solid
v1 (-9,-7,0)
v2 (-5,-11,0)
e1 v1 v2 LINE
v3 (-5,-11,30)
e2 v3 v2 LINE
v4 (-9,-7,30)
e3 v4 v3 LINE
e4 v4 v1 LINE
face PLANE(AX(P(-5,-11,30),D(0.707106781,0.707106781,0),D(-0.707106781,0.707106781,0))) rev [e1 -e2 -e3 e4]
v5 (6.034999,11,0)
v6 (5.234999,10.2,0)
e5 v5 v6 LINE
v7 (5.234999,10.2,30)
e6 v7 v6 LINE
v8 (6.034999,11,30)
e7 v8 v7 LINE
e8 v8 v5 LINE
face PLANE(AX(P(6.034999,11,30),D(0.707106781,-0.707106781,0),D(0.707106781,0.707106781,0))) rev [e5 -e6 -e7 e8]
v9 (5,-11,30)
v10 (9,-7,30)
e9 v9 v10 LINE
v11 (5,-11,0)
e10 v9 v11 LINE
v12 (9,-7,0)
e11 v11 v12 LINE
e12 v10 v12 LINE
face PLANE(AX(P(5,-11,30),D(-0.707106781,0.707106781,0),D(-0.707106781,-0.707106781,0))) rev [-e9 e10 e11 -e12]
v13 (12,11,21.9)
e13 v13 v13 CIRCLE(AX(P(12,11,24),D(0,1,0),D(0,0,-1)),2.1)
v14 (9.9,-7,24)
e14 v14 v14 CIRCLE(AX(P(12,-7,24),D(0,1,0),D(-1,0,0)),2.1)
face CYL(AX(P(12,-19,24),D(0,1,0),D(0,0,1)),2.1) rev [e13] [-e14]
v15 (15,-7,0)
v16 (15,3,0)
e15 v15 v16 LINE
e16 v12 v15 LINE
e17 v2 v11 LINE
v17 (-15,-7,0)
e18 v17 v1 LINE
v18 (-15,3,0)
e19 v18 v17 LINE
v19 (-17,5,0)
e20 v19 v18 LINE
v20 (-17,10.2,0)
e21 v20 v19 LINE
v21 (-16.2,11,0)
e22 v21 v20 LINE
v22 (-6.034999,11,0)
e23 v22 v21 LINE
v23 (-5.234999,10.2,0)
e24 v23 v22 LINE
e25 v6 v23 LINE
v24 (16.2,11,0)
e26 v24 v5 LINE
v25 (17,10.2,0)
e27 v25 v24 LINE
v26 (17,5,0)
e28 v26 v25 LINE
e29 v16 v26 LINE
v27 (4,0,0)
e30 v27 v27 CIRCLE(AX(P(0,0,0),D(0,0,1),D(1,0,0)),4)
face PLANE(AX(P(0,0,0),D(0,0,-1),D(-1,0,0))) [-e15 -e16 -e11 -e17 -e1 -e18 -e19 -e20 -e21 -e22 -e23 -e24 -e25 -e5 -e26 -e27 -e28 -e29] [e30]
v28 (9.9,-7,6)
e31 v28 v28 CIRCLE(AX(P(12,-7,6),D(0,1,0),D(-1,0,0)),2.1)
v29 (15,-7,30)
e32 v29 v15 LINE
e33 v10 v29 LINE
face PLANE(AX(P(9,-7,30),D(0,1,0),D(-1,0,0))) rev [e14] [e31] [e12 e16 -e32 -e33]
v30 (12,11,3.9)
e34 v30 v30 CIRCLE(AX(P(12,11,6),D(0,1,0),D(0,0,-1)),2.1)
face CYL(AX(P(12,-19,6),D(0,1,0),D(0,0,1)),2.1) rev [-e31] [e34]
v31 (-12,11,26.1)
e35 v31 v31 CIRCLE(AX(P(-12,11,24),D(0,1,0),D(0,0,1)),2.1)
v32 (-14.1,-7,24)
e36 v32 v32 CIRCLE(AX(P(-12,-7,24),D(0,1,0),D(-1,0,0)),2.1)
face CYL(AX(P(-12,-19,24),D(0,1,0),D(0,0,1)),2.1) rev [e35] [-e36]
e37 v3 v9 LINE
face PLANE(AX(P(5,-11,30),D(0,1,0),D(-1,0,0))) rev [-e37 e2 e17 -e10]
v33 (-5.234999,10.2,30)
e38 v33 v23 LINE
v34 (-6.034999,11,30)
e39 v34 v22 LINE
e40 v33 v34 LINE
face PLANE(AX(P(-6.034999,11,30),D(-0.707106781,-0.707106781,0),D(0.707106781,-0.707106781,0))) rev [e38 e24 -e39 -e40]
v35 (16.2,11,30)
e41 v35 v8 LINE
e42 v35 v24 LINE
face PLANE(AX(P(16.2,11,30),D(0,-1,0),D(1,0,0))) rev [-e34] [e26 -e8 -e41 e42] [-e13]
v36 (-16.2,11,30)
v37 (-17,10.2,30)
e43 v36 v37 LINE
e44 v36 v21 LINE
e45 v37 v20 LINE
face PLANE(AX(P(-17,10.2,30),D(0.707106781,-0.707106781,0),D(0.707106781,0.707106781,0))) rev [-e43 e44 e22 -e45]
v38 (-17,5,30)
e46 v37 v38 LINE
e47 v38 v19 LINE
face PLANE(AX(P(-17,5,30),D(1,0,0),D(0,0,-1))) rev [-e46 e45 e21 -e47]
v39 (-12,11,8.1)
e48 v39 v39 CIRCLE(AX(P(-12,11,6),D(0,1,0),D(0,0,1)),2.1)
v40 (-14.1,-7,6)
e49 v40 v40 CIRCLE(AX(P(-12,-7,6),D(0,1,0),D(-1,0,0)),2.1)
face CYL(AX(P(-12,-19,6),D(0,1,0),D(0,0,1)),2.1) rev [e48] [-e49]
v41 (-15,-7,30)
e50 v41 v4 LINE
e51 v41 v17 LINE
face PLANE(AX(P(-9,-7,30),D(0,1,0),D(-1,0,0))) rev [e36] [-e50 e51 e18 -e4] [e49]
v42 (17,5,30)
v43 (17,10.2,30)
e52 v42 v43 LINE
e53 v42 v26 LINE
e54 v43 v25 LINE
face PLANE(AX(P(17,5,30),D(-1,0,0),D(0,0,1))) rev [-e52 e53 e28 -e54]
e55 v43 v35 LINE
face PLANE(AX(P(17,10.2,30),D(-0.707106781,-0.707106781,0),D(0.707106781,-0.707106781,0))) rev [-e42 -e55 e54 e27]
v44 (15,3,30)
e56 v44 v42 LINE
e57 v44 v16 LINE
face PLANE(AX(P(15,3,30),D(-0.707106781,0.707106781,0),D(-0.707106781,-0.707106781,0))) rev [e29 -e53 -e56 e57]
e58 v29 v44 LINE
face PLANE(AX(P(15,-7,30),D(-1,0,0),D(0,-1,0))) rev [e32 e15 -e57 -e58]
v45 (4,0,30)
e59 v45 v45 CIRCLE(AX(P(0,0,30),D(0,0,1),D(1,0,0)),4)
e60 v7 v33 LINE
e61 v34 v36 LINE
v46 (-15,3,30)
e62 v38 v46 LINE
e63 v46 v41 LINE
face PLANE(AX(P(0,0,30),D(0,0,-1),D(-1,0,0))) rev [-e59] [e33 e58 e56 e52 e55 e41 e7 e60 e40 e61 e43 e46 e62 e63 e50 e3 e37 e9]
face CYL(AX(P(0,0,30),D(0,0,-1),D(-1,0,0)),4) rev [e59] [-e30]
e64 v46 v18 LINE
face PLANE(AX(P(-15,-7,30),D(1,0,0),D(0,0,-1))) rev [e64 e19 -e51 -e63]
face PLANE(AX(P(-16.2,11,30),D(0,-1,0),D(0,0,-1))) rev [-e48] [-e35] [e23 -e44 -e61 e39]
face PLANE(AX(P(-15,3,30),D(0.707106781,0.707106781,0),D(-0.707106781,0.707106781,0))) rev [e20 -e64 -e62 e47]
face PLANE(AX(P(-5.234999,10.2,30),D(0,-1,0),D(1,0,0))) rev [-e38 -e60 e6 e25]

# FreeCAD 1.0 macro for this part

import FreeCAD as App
import Part
import Sketcher
from FreeCAD import Vector
Q = App.Units.Quantity


def add_polygon(sketch, points):
    """Adds a closed chain of lines whose ends are joined by coincident constraints."""
    first, n = sketch.GeometryCount, len(points)
    for a, b in zip(points, points[1:] + points[:1]):
        sketch.addGeometry(Part.LineSegment(App.Vector(*a, 0), App.Vector(*b, 0)), False)
    for i in range(n):
        sketch.addConstraint(Sketcher.Constraint("Coincident", first + i, 2, first + (i + 1) % n, 1))

doc = App.newDocument("Part")
body = doc.addObject("PartDesign::Body", "Body")

sketch1 = body.newObject("Sketcher::SketchObject", "Sketch")
sketch1.AttachmentSupport = (doc.getObject("XY_Plane"), [""])
sketch1.MapMode = "FlatFace"
add_polygon(sketch1, [(-5, -11), (5, -11), (9, -7), (15, -7), (15, 3), (17, 5), (17, 10.2), (16.2, 11), (6, 11), (5.2, 10.2), (-5.2, 10.2), (-6, 11), (-16.2, 11), (-17, 10.2), (-17, 5), (-15, 3), (-15, -7), (-9, -7)])
sketch1.addGeometry(Part.Circle(Vector(0, 0, 0), Vector(0, 0, 1), 4), False)
sketch1.addConstraint([
    Sketcher.Constraint("Horizontal", 0),
    Sketcher.Constraint("Horizontal", 2),
    Sketcher.Constraint("Vertical", 3),
    Sketcher.Constraint("Vertical", 5),
    Sketcher.Constraint("Horizontal", 7),
    Sketcher.Constraint("Horizontal", 9),
    Sketcher.Constraint("Horizontal", 11),
    Sketcher.Constraint("Vertical", 13),
    Sketcher.Constraint("Vertical", 15),
    Sketcher.Constraint("Horizontal", 16),
    Sketcher.Constraint("Coincident", 18, 3, -1, 1),
    Sketcher.Constraint("Symmetric", 7, 2, 10, 2, -2),
    Sketcher.Constraint("Symmetric", 5, 2, 12, 2, -2),
    Sketcher.Constraint("Symmetric", 3, 2, 14, 2, -2),
    Sketcher.Constraint("Symmetric", 1, 2, 16, 2, -2),
    Sketcher.Constraint("Parallel", 1, 4),
    Sketcher.Constraint("Perpendicular", 4, 6),
    Sketcher.Constraint("Perpendicular", 6, 8),
    Sketcher.Constraint("Perpendicular", 8, 10),
    Sketcher.Constraint("Perpendicular", 10, 12),
    Sketcher.Constraint("Perpendicular", 12, 14),
    Sketcher.Constraint("Parallel", 14, 17),
    Sketcher.Constraint("Horizontal", 5, 2, 8, 2),
    Sketcher.Constraint("Horizontal", 4, 2, 13, 2),
    Sketcher.Constraint("Equal", 0, 3),
    Sketcher.Constraint("Diameter", 18, Q("8 mm")),
    Sketcher.Constraint("DistanceX", 0, 1, 0, 2, Q("10 mm")),
    Sketcher.Constraint("DistanceX", 2, 1, 2, 2, Q("6 mm")),
    Sketcher.Constraint("DistanceY", 5, 1, 5, 2, Q("5.2 mm")),
    Sketcher.Constraint("DistanceY", 0, 2, -1, 1, Q("11 mm")),
    Sketcher.Constraint("DistanceX", -1, 1, 1, 2, Q("9 mm")),
    Sketcher.Constraint("DistanceX", -1, 1, 4, 2, Q("17 mm")),
    Sketcher.Constraint("DistanceY", -1, 1, 6, 2, Q("11 mm")),
    Sketcher.Constraint("DistanceX", 9, 2, 9, 1, Q("10.469998 mm")),
])
pad1 = body.newObject("PartDesign::Pad", "Pad")
pad1.Profile = sketch1
pad1.Length = 30

sketch2 = body.newObject("Sketcher::SketchObject", "Sketch001")
sketch2.AttachmentSupport = (doc.getObject("XZ_Plane"), [""])
sketch2.MapMode = "FlatFace"
sketch2.AttachmentOffset = App.Placement(Vector(0, 0, -11), App.Rotation())
sketch2.addGeometry([
    Part.Circle(Vector(-12, 6, 0), Vector(0, 0, 1), 2.1),
    Part.Circle(Vector(-12, 24, 0), Vector(0, 0, 1), 2.1),
    Part.Circle(Vector(12, 6, 0), Vector(0, 0, 1), 2.1),
    Part.Circle(Vector(12, 24, 0), Vector(0, 0, 1), 2.1),
], False)
sketch2.addConstraint([
    Sketcher.Constraint("Equal", 0, 1),
    Sketcher.Constraint("Equal", 1, 2),
    Sketcher.Constraint("Equal", 2, 3),
    Sketcher.Constraint("Symmetric", 0, 3, 2, 3, -2),
    Sketcher.Constraint("Symmetric", 1, 3, 3, 3, -2),
    Sketcher.Constraint("Vertical", 0, 3, 1, 3),
    Sketcher.Constraint("Diameter", 0, Q("4.2 mm")),
    Sketcher.Constraint("DistanceX", 0, 3, -1, 1, Q("12 mm")),
    Sketcher.Constraint("DistanceY", -1, 1, 0, 3, Q("6 mm")),
    Sketcher.Constraint("DistanceY", -1, 1, 1, 3, Q("24 mm")),
])
pocket1 = body.newObject("PartDesign::Pocket", "Pocket")
pocket1.Profile = sketch2
pocket1.Length = 30
pocket1.Reversed = True

doc.recompute()
